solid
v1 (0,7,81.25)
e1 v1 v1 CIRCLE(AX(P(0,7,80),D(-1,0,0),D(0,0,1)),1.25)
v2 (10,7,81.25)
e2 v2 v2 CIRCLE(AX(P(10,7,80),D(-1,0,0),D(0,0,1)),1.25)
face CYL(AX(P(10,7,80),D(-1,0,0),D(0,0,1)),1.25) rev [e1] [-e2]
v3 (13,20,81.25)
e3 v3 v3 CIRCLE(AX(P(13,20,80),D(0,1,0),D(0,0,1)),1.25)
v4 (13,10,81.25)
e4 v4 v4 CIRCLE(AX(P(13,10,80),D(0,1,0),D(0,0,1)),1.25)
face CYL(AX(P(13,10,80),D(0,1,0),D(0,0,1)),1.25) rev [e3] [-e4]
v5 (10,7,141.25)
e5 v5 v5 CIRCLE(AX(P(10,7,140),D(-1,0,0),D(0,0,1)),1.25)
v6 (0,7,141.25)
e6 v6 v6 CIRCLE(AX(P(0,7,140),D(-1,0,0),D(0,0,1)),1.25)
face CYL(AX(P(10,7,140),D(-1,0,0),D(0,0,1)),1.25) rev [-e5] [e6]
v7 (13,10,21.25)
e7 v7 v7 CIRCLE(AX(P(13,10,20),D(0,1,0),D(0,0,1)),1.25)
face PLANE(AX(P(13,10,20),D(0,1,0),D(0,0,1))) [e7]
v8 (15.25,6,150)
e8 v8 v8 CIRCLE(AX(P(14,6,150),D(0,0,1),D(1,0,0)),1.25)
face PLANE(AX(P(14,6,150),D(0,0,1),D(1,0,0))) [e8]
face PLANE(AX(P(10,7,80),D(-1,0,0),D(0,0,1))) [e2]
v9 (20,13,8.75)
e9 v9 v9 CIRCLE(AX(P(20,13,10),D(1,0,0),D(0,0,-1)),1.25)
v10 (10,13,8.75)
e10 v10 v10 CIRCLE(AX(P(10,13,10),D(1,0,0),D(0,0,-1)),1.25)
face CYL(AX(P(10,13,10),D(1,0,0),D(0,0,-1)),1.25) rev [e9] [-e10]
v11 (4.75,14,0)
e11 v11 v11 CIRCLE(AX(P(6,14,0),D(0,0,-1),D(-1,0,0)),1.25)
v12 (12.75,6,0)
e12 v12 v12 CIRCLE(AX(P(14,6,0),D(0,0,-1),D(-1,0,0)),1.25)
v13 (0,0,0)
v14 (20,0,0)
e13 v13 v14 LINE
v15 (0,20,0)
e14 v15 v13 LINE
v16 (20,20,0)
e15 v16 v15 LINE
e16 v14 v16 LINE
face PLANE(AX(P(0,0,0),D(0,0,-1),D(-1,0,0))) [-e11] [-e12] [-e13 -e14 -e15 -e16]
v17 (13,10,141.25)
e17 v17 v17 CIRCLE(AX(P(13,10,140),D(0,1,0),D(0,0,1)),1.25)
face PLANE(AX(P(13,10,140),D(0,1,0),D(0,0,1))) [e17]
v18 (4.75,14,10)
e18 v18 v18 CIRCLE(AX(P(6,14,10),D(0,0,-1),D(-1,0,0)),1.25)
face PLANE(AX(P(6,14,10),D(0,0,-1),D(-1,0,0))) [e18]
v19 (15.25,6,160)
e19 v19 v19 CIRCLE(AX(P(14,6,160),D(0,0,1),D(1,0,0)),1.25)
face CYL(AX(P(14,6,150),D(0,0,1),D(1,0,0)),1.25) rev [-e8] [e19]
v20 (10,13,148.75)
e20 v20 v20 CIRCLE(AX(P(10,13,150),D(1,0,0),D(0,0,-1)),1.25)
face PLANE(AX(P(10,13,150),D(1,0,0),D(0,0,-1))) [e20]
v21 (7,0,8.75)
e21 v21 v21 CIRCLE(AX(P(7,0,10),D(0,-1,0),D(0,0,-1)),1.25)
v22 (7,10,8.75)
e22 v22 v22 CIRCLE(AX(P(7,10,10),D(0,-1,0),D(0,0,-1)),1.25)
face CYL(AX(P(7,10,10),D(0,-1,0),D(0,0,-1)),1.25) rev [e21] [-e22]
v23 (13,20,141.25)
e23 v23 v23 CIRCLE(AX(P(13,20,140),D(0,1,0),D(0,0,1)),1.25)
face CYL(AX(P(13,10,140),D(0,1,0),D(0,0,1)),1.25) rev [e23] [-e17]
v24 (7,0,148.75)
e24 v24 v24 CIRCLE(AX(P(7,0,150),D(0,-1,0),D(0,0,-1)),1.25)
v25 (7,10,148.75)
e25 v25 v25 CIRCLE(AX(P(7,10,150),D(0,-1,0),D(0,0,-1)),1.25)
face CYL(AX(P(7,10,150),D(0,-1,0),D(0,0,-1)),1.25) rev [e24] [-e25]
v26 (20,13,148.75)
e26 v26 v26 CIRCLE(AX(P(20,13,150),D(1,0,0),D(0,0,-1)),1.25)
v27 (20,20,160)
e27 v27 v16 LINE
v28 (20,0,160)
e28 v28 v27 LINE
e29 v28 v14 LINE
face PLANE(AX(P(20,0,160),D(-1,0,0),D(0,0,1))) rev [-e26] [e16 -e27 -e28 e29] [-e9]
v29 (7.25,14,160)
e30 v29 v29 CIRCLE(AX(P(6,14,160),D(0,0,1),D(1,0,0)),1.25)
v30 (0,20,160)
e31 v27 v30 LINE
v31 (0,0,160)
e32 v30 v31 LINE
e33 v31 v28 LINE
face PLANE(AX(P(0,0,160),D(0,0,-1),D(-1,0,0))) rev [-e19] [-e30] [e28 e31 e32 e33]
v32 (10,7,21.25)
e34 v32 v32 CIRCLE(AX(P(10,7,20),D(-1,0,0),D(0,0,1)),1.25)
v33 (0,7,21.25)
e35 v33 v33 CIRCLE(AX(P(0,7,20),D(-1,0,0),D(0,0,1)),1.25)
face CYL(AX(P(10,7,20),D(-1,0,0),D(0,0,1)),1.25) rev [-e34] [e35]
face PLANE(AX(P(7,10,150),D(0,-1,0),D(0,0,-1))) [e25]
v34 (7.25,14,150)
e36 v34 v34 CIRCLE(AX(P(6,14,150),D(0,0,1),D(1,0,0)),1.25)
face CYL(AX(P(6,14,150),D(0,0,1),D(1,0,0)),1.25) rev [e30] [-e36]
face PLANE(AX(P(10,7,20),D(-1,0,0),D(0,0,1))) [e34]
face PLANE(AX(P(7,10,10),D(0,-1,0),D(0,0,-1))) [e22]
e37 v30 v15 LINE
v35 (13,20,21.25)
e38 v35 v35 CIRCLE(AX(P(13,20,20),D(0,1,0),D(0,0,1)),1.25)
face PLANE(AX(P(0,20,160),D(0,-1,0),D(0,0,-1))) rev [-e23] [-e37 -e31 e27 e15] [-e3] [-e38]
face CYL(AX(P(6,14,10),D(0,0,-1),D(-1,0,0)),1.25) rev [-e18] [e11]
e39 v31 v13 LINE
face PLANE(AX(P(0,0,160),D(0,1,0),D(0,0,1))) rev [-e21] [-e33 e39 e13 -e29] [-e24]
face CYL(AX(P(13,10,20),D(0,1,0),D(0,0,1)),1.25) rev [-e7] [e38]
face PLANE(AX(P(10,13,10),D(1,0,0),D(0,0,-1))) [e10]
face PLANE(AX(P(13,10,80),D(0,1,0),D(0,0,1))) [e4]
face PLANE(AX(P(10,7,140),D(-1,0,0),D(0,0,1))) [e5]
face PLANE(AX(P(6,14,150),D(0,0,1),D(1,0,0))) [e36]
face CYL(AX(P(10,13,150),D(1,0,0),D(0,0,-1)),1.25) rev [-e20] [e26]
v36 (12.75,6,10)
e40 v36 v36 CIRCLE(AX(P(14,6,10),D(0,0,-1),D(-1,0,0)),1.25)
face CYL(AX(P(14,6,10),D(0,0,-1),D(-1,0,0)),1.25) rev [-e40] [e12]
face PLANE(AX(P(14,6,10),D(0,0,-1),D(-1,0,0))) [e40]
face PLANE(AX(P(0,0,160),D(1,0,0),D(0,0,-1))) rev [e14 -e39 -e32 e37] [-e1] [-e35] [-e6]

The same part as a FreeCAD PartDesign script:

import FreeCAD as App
import Part
import Sketcher
from FreeCAD import Vector
Q = App.Units.Quantity

doc = App.newDocument("Part")
body = doc.addObject("PartDesign::Body", "Body")

# Sketch on XY plane
sketch1 = doc.addObject("Sketcher::SketchObject", "Sketch")
body.addObject(sketch1)
sketch1.AttachmentSupport = (doc.XY_Plane, [""])
sketch1.MapMode = "FlatFace"
sketch1.addGeometry([
    Part.LineSegment(Vector(0, 20, 0), Vector(0, 0, 0)),
    Part.LineSegment(Vector(0, 0, 0), Vector(20, 0, 0)),
    Part.LineSegment(Vector(20, 0, 0), Vector(20, 20, 0)),
    Part.LineSegment(Vector(20, 20, 0), Vector(0, 20, 0)),
], False)
sketch1.addConstraint([
    Sketcher.Constraint("Coincident", 0, 2, 1, 1),
    Sketcher.Constraint("Coincident", 1, 2, 2, 1),
    Sketcher.Constraint("Coincident", 2, 2, 3, 1),
    Sketcher.Constraint("Coincident", 3, 2, 0, 1),
    Sketcher.Constraint("Vertical", 0),
    Sketcher.Constraint("Horizontal", 1),
    Sketcher.Constraint("Vertical", 2),
    Sketcher.Constraint("Horizontal", 3),
    Sketcher.Constraint("Coincident", 0, 2, -1, 1),
    Sketcher.Constraint("Equal", 3, 0),
    Sketcher.Constraint("DistanceX", 1, 1, 1, 2, Q("20 mm")),
])
pad1 = doc.addObject("PartDesign::Pad", "Pad")
body.addObject(pad1)
pad1.Profile = sketch1
pad1.Length = 160

# Sketch on XY plane
sketch2 = doc.addObject("Sketcher::SketchObject", "Sketch001")
body.addObject(sketch2)
sketch2.AttachmentSupport = (doc.XY_Plane, [""])
sketch2.MapMode = "FlatFace"
sketch2.AttachmentOffset = App.Placement(Vector(0, 0, 160), App.Rotation())
sketch2.addGeometry([
    Part.Circle(Vector(14, 6, 0), Vector(0, 0, 1), 1.2),
    Part.Circle(Vector(6, 14, 0), Vector(0, 0, 1), 1.2),
], False)
sketch2.addConstraint([
    Sketcher.Constraint("Equal", 0, 1),
    Sketcher.Constraint("Diameter", 0, Q("2.5 mm")),
    Sketcher.Constraint("DistanceX", -1, 1, 0, 3, Q("14 mm")),
    Sketcher.Constraint("DistanceY", -1, 1, 0, 3, Q("6 mm")),
    Sketcher.Constraint("DistanceX", -1, 1, 1, 3, Q("6 mm")),
    Sketcher.Constraint("DistanceY", -1, 1, 1, 3, Q("14 mm")),
])
pocket1 = doc.addObject("PartDesign::Pocket", "Pocket")
body.addObject(pocket1)
pocket1.Profile = sketch2
pocket1.Length = 10

# Sketch on XY plane
sketch3 = doc.addObject("Sketcher::SketchObject", "Sketch002")
body.addObject(sketch3)
sketch3.AttachmentSupport = (doc.XY_Plane, [""])
sketch3.MapMode = "FlatFace"
sketch3.AttachmentOffset = App.Placement(Vector(0, 0, 10), App.Rotation())
sketch3.addGeometry([
    Part.Circle(Vector(14, 6, 0), Vector(0, 0, 1), 1.2),
    Part.Circle(Vector(6, 14, 0), Vector(0, 0, 1), 1.2),
], False)
sketch3.addConstraint([
    Sketcher.Constraint("Equal", 0, 1),
    Sketcher.Constraint("Diameter", 0, Q("2.5 mm")),
    Sketcher.Constraint("DistanceX", -1, 1, 0, 3, Q("14 mm")),
    Sketcher.Constraint("DistanceY", -1, 1, 0, 3, Q("6 mm")),
    Sketcher.Constraint("DistanceX", -1, 1, 1, 3, Q("6 mm")),
    Sketcher.Constraint("DistanceY", -1, 1, 1, 3, Q("14 mm")),
])
pocket2 = doc.addObject("PartDesign::Pocket", "Pocket001")
body.addObject(pocket2)
pocket2.Profile = sketch3
pocket2.Length = 10

# Sketch on YZ plane
sketch4 = doc.addObject("Sketcher::SketchObject", "Sketch003")
body.addObject(sketch4)
sketch4.AttachmentSupport = (doc.YZ_Plane, [""])
sketch4.MapMode = "FlatFace"
sketch4.AttachmentOffset = App.Placement(Vector(0, 0, 20), App.Rotation())
sketch4.addGeometry([
    Part.Circle(Vector(13, 10, 0), Vector(0, 0, 1), 1.2),
    Part.Circle(Vector(13, 150, 0), Vector(0, 0, 1), 1.2),
], False)
sketch4.addConstraint([
    Sketcher.Constraint("Equal", 0, 1),
    Sketcher.Constraint("Vertical", 0, 3, 1, 3),
    Sketcher.Constraint("Diameter", 0, Q("2.5 mm")),
    Sketcher.Constraint("DistanceX", -1, 1, 0, 3, Q("13 mm")),
    Sketcher.Constraint("DistanceY", -1, 1, 0, 3, Q("10 mm")),
    Sketcher.Constraint("DistanceY", -1, 1, 1, 3, Q("150 mm")),
])
pocket3 = doc.addObject("PartDesign::Pocket", "Pocket002")
body.addObject(pocket3)
pocket3.Profile = sketch4
pocket3.Length = 10

# Sketch on XZ plane
sketch5 = doc.addObject("Sketcher::SketchObject", "Sketch004")
body.addObject(sketch5)
sketch5.AttachmentSupport = (doc.XZ_Plane, [""])
sketch5.MapMode = "FlatFace"
sketch5.addGeometry([
    Part.Circle(Vector(7, 10, 0), Vector(0, 0, 1), 1.2),
    Part.Circle(Vector(7, 150, 0), Vector(0, 0, 1), 1.2),
], False)
sketch5.addConstraint([
    Sketcher.Constraint("Equal", 0, 1),
    Sketcher.Constraint("Vertical", 0, 3, 1, 3),
    Sketcher.Constraint("Diameter", 0, Q("2.5 mm")),
    Sketcher.Constraint("DistanceX", -1, 1, 0, 3, Q("7 mm")),
    Sketcher.Constraint("DistanceY", -1, 1, 0, 3, Q("10 mm")),
    Sketcher.Constraint("DistanceY", -1, 1, 1, 3, Q("150 mm")),
])
pocket4 = doc.addObject("PartDesign::Pocket", "Pocket003")
body.addObject(pocket4)
pocket4.Profile = sketch5
pocket4.Length = 10

# Sketch on XZ plane
sketch6 = doc.addObject("Sketcher::SketchObject", "Sketch005")
body.addObject(sketch6)
sketch6.AttachmentSupport = (doc.XZ_Plane, [""])
sketch6.MapMode = "FlatFace"
sketch6.AttachmentOffset = App.Placement(Vector(0, 0, -20), App.Rotation())
sketch6.addGeometry([
    Part.Circle(Vector(13, 20, 0), Vector(0, 0, 1), 1.2),
    Part.Circle(Vector(13, 80, 0), Vector(0, 0, 1), 1.2),
    Part.Circle(Vector(13, 140, 0), Vector(0, 0, 1), 1.2),
], False)
sketch6.addConstraint([
    Sketcher.Constraint("Equal", 0, 1),
    Sketcher.Constraint("Equal", 1, 2),
    Sketcher.Constraint("Vertical", 0, 3, 1, 3),
    Sketcher.Constraint("Vertical", 1, 3, 2, 3),
    Sketcher.Constraint("Diameter", 0, Q("2.5 mm")),
    Sketcher.Constraint("DistanceX", -1, 1, 0, 3, Q("13 mm")),
    Sketcher.Constraint("DistanceY", -1, 1, 0, 3, Q("20 mm")),
    Sketcher.Constraint("DistanceY", -1, 1, 1, 3, Q("80 mm")),
    Sketcher.Constraint("DistanceY", -1, 1, 2, 3, Q("140 mm")),
])
pocket5 = doc.addObject("PartDesign::Pocket", "Pocket004")
body.addObject(pocket5)
pocket5.Profile = sketch6
pocket5.Length = 10
pocket5.Reversed = True

# Sketch on YZ plane
sketch7 = doc.addObject("Sketcher::SketchObject", "Sketch006")
body.addObject(sketch7)
sketch7.AttachmentSupport = (doc.YZ_Plane, [""])
sketch7.MapMode = "FlatFace"
sketch7.addGeometry([
    Part.Circle(Vector(7, 20, 0), Vector(0, 0, 1), 1.2),
    Part.Circle(Vector(7, 80, 0), Vector(0, 0, 1), 1.2),
    Part.Circle(Vector(7, 140, 0), Vector(0, 0, 1), 1.2),
], False)
sketch7.addConstraint([
    Sketcher.Constraint("Equal", 0, 1),
    Sketcher.Constraint("Equal", 1, 2),
    Sketcher.Constraint("Vertical", 0, 3, 1, 3),
    Sketcher.Constraint("Vertical", 1, 3, 2, 3),
    Sketcher.Constraint("Diameter", 0, Q("2.5 mm")),
    Sketcher.Constraint("DistanceX", -1, 1, 0, 3, Q("7 mm")),
    Sketcher.Constraint("DistanceY", -1, 1, 0, 3, Q("20 mm")),
    Sketcher.Constraint("DistanceY", -1, 1, 1, 3, Q("80 mm")),
    Sketcher.Constraint("DistanceY", -1, 1, 2, 3, Q("140 mm")),
])
pocket6 = doc.addObject("PartDesign::Pocket", "Pocket005")
body.addObject(pocket6)
pocket6.Profile = sketch7
pocket6.Length = 10
pocket6.Reversed = True

doc.recompute()
